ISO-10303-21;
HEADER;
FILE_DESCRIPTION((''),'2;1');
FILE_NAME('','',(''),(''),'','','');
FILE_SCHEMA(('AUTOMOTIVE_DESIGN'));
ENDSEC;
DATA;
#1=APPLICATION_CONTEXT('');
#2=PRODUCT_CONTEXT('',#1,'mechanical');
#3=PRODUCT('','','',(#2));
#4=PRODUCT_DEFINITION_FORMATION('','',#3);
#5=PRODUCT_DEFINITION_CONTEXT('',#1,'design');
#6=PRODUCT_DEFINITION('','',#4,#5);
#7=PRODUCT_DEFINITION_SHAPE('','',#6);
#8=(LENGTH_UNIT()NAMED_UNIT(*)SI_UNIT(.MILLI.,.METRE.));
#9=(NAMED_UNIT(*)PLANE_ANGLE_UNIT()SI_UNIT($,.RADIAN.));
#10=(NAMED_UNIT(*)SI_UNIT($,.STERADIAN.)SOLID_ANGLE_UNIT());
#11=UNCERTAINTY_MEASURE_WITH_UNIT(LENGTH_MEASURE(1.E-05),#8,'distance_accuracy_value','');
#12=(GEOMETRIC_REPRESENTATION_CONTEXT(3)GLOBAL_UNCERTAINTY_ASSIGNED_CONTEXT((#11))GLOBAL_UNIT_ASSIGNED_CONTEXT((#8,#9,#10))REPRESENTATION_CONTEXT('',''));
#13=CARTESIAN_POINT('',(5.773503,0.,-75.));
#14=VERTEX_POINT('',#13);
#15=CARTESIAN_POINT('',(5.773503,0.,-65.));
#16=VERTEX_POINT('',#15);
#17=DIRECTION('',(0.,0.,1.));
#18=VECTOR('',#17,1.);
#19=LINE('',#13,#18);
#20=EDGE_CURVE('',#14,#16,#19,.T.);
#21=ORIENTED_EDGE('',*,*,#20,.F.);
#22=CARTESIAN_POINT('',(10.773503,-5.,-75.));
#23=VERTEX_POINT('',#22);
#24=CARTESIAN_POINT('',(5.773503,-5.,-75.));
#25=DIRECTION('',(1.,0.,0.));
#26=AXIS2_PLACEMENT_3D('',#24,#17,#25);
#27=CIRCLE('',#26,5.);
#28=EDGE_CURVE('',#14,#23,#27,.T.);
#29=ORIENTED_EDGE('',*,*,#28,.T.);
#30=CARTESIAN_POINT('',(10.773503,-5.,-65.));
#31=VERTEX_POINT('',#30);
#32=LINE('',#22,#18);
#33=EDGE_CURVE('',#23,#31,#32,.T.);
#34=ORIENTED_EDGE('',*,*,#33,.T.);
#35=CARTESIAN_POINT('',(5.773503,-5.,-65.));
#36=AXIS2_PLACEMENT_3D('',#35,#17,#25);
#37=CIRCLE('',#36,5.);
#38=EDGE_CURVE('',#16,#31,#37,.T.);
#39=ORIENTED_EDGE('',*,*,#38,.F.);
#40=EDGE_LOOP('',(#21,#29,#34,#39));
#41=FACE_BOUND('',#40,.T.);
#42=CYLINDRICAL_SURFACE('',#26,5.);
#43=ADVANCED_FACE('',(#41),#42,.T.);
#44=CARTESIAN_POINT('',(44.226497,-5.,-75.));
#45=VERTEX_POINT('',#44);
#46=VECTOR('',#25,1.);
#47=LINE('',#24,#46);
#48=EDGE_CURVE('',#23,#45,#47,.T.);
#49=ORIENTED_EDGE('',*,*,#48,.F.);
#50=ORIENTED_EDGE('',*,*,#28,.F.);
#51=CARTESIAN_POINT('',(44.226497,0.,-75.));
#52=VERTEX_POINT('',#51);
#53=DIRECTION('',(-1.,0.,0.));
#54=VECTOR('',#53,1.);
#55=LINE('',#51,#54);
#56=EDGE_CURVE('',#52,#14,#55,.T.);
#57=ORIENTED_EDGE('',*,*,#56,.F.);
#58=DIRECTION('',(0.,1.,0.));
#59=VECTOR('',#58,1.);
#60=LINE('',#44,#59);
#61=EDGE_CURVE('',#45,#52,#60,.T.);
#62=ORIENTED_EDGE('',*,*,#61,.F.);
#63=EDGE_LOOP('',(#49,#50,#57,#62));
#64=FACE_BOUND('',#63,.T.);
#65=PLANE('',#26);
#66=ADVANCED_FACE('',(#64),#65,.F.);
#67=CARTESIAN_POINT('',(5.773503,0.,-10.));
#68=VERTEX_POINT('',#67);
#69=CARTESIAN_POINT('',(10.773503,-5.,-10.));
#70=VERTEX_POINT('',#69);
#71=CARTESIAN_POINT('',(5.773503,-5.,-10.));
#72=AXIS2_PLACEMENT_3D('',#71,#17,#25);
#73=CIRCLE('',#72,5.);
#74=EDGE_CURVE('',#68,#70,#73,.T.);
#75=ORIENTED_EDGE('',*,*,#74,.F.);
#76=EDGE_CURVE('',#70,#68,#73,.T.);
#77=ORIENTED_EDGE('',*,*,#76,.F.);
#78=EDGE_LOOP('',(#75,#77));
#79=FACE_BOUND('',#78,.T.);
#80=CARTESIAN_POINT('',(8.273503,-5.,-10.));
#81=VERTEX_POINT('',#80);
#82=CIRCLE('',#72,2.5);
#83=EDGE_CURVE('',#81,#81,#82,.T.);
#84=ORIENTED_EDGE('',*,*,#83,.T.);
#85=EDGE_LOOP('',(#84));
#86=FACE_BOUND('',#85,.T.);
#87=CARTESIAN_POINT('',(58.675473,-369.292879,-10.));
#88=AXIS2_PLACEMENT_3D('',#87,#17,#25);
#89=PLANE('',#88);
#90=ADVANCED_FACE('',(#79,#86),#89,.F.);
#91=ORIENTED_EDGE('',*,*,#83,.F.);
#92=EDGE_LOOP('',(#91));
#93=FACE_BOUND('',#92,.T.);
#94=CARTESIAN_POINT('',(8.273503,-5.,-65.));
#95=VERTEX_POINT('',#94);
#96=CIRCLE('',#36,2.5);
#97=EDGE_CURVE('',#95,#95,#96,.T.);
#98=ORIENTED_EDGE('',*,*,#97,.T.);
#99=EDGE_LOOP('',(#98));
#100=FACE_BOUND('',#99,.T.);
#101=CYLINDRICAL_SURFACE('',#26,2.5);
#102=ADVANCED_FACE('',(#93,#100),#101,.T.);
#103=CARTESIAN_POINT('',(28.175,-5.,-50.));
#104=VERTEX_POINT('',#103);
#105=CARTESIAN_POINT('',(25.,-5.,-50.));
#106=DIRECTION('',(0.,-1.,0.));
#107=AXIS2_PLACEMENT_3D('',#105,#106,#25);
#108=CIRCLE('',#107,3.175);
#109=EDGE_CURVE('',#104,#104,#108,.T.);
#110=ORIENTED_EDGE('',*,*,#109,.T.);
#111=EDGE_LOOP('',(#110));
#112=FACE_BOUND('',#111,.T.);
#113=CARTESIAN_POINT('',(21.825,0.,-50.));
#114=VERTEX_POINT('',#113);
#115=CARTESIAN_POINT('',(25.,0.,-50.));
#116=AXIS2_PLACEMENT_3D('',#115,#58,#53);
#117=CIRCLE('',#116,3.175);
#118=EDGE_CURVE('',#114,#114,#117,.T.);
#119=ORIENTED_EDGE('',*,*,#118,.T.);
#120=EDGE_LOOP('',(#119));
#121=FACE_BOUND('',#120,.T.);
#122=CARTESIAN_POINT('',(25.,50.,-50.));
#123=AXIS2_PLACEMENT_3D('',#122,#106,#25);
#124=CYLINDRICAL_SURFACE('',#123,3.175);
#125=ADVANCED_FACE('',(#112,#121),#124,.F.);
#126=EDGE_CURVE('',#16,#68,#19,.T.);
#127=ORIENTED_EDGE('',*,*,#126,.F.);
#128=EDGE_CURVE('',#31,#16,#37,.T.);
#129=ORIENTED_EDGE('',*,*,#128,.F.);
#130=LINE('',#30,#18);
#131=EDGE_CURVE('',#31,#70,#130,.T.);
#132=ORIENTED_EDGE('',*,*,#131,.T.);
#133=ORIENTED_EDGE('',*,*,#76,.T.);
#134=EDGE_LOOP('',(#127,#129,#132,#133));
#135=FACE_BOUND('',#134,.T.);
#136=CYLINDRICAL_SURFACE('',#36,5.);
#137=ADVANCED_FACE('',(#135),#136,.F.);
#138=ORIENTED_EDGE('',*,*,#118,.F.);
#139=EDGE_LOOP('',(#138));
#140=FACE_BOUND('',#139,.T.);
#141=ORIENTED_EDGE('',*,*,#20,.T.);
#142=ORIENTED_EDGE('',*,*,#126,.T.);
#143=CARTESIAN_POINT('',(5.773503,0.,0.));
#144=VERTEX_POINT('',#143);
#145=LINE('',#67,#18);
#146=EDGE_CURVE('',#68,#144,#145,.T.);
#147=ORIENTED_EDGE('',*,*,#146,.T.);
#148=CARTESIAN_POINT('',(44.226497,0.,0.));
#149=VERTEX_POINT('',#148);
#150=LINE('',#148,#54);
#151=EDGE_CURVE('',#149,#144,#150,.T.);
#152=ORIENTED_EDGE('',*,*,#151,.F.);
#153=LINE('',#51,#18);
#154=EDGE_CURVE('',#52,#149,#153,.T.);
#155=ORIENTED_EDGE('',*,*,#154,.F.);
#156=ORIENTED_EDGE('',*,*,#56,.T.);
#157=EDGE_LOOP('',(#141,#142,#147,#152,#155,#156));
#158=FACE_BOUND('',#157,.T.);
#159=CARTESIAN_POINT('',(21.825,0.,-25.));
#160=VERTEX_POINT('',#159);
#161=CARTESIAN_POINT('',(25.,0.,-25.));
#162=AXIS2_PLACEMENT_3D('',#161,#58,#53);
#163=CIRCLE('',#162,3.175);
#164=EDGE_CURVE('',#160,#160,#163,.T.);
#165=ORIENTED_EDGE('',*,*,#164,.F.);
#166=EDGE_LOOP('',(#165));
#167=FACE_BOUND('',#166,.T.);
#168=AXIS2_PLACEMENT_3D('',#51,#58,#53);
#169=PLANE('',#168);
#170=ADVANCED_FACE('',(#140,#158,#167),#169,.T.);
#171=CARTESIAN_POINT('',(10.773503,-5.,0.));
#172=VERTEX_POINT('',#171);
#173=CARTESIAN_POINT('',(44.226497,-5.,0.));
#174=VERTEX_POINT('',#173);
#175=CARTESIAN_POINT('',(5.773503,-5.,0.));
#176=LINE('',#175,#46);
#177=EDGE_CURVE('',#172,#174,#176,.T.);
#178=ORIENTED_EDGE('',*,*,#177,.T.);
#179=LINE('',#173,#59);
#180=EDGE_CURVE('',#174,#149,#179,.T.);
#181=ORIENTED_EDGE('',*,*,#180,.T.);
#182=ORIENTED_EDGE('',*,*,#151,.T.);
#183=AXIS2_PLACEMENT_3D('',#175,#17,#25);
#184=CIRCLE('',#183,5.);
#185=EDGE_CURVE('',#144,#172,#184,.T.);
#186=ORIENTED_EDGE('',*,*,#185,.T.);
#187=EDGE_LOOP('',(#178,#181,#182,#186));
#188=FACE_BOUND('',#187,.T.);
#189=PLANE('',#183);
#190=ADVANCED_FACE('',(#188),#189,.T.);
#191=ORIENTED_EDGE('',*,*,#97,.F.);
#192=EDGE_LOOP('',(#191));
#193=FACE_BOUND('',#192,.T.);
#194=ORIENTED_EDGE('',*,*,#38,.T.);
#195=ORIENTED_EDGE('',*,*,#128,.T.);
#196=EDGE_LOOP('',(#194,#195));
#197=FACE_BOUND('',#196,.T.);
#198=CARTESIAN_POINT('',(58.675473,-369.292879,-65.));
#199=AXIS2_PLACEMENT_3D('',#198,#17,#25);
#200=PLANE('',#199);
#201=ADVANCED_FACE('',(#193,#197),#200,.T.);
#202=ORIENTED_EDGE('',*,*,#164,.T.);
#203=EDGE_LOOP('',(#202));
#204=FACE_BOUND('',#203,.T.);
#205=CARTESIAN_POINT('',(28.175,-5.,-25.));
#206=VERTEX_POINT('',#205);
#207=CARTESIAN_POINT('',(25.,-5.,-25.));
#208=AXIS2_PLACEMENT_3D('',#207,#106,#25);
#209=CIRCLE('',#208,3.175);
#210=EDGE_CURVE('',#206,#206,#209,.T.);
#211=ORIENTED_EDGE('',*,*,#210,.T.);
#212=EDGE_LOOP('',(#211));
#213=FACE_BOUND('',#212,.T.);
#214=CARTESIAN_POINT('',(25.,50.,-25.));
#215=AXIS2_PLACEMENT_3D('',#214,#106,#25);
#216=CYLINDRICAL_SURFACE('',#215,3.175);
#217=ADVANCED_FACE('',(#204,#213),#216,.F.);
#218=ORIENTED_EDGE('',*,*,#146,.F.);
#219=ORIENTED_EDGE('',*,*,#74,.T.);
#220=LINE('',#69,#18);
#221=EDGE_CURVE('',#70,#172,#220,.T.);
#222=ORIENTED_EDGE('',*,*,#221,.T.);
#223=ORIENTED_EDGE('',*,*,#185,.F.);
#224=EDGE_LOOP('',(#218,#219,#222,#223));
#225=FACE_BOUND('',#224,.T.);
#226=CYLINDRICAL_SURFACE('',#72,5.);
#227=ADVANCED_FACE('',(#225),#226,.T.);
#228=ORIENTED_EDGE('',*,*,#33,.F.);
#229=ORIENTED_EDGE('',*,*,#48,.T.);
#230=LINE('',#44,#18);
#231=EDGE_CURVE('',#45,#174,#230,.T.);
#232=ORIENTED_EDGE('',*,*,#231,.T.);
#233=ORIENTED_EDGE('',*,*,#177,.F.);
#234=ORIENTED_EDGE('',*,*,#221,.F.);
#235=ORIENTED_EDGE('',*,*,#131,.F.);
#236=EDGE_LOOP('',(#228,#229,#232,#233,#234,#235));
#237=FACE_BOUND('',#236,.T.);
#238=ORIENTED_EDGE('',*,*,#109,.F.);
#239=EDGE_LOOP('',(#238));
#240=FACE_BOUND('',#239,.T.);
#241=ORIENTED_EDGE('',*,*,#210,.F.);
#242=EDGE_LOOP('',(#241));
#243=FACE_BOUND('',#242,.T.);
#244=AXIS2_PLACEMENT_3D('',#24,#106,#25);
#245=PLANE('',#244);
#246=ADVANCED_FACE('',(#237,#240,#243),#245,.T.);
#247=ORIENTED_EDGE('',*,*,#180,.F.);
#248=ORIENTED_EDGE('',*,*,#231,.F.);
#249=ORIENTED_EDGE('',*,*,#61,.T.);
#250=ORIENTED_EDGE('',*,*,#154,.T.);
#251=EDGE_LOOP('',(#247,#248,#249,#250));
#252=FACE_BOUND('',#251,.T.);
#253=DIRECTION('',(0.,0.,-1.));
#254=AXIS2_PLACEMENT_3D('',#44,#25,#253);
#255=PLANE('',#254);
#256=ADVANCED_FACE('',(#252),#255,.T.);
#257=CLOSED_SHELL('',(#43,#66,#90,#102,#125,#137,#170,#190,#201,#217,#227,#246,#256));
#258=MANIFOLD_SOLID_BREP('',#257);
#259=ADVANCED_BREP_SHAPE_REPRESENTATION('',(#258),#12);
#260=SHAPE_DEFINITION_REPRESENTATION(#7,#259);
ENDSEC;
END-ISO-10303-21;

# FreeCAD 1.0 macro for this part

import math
import FreeCAD as App
import Part
import Sketcher
from FreeCAD import Vector

doc = App.newDocument("Part")
body = doc.addObject("PartDesign::Body", "Body")

# Sketch on XY plane
sketch1 = body.newObject("Sketcher::SketchObject", "Sketch")
sketch1.AttachmentSupport = (doc.getObject("XY_Plane"), [""])
sketch1.MapMode = "FlatFace"
sketch1.addGeometry(Part.LineSegment(Vector(6, 0, 0), Vector(6, -5, 0)), False)
sketch1.addGeometry(Part.LineSegment(Vector(6, -5, 0), Vector(44, -5, 0)), False)
sketch1.addGeometry(Part.LineSegment(Vector(44, -5, 0), Vector(44, 0, 0)), False)
sketch1.addGeometry(Part.LineSegment(Vector(44, 0, 0), Vector(6, 0, 0)), False)
sketch1.addConstraint(Sketcher.Constraint("Coincident", 0, 2, 1, 1))
sketch1.addConstraint(Sketcher.Constraint("Coincident", 1, 2, 2, 1))
sketch1.addConstraint(Sketcher.Constraint("Coincident", 2, 2, 3, 1))
sketch1.addConstraint(Sketcher.Constraint("Coincident", 3, 2, 0, 1))
sketch1.addConstraint(Sketcher.Constraint("Vertical", 0))
sketch1.addConstraint(Sketcher.Constraint("Horizontal", 1))
sketch1.addConstraint(Sketcher.Constraint("Vertical", 2))
sketch1.addConstraint(Sketcher.Constraint("Horizontal", 3))
sketch1.addConstraint(Sketcher.Constraint("PointOnObject", 2, 2, -1))
sketch1.addConstraint(Sketcher.Constraint("DistanceY", 0, 2, 0, 1, 5.0))
sketch1.addConstraint(Sketcher.Constraint("DistanceX", 1, 1, 1, 2, 38.452995))
sketch1.addConstraint(Sketcher.Constraint("DistanceX", -1, 1, 0, 2, 5.773503))
pad1 = body.newObject("PartDesign::Pad", "Pad")
pad1.Profile = sketch1
pad1.Length = 75
pad1.Reversed = True

# Sketch on XY plane
sketch2 = body.newObject("Sketcher::SketchObject", "Sketch001")
sketch2.AttachmentSupport = (doc.getObject("XY_Plane"), [""])
sketch2.MapMode = "FlatFace"
sketch2.addGeometry(Part.ArcOfCircle(Part.Circle(Vector(5.8, -5, 0), Vector(0, 0, 1), 5), math.radians(0), math.radians(90)), False)
sketch2.addGeometry(Part.ArcOfCircle(Part.Circle(Vector(5.8, -5, 0), Vector(0, 0, 1), 5), math.radians(90), math.radians(150)), False)
sketch2.addGeometry(Part.ArcOfCircle(Part.Circle(Vector(5.8, -5, 0), Vector(0, 0, 1), 5), math.radians(150), math.radians(360)), False)
sketch2.addConstraint(Sketcher.Constraint("Tangent", 0, 2, 1, 1))
sketch2.addConstraint(Sketcher.Constraint("Tangent", 1, 2, 2, 1))
sketch2.addConstraint(Sketcher.Constraint("Tangent", 2, 2, 0, 1))
sketch2.addConstraint(Sketcher.Constraint("PointOnObject", 0, 2, -1))
sketch2.addConstraint(Sketcher.Constraint("Horizontal", 1, 3, 2, 2))
sketch2.addConstraint(Sketcher.Constraint("Vertical", 2, 3, 0, 2))
sketch2.addConstraint(Sketcher.Constraint("Radius", 0, 5.0))
sketch2.addConstraint(Sketcher.Constraint("DistanceY", 1, 2, -1, 1, 2.5))
sketch2.addConstraint(Sketcher.Constraint("DistanceX", -1, 1, 0, 3, 5.773503))
pad2 = body.newObject("PartDesign::Pad", "Pad001")
pad2.Profile = sketch2
pad2.Length = 10
pad2.Reversed = True

# Sketch on XY plane
sketch3 = body.newObject("Sketcher::SketchObject", "Sketch002")
sketch3.AttachmentSupport = (doc.getObject("XY_Plane"), [""])
sketch3.MapMode = "FlatFace"
sketch3.addGeometry(Part.ArcOfCircle(Part.Circle(Vector(5.8, -5, 0), Vector(0, 0, 1), 2.5), math.radians(0), math.radians(90)), False)
sketch3.addGeometry(Part.ArcOfCircle(Part.Circle(Vector(5.8, -5, 0), Vector(0, 0, 1), 2.5), math.radians(90), math.radians(360)), False)
sketch3.addConstraint(Sketcher.Constraint("Tangent", 0, 1, 1, 2))
sketch3.addConstraint(Sketcher.Constraint("Coincident", 1, 1, 0, 2))
sketch3.addConstraint(Sketcher.Constraint("Horizontal", 1, 3, 0, 1))
sketch3.addConstraint(Sketcher.Constraint("Vertical", 0, 3, 1, 1))
sketch3.addConstraint(Sketcher.Constraint("Radius", 0, 2.5))
sketch3.addConstraint(Sketcher.Constraint("DistanceY", 0, 3, -1, 1, 5.0))
sketch3.addConstraint(Sketcher.Constraint("DistanceX", -1, 1, 0, 3, 5.773503))
pad3 = body.newObject("PartDesign::Pad", "Pad002")
pad3.Profile = sketch3
pad3.Length = 75
pad3.Reversed = True

# Sketch on XY plane
sketch4 = body.newObject("Sketcher::SketchObject", "Sketch003")
sketch4.AttachmentSupport = (doc.getObject("XY_Plane"), [""])
sketch4.MapMode = "FlatFace"
sketch4.AttachmentOffset = App.Placement(Vector(0, 0, -65), App.Rotation())
sketch4.addGeometry(Part.ArcOfCircle(Part.Circle(Vector(5.8, -5, 0), Vector(0, 0, 1), 5), math.radians(0), math.radians(90)), False)
sketch4.addGeometry(Part.ArcOfCircle(Part.Circle(Vector(5.8, -5, 0), Vector(0, 0, 1), 5), math.radians(90), math.radians(150)), False)
sketch4.addGeometry(Part.ArcOfCircle(Part.Circle(Vector(5.8, -5, 0), Vector(0, 0, 1), 5), math.radians(150), math.radians(360)), False)
sketch4.addGeometry(Part.ArcOfCircle(Part.Circle(Vector(5.8, -5, 0), Vector(0, 0, 1), 2.5), math.radians(0), math.radians(90)), False)
sketch4.addGeometry(Part.ArcOfCircle(Part.Circle(Vector(5.8, -5, 0), Vector(0, 0, 1), 2.5), math.radians(90), math.radians(360)), False)
sketch4.addConstraint(Sketcher.Constraint("Tangent", 0, 2, 1, 1))
sketch4.addConstraint(Sketcher.Constraint("Tangent", 1, 2, 2, 1))
sketch4.addConstraint(Sketcher.Constraint("Tangent", 2, 2, 0, 1))
sketch4.addConstraint(Sketcher.Constraint("Tangent", 3, 1, 4, 2))
sketch4.addConstraint(Sketcher.Constraint("Coincident", 4, 1, 3, 2))
sketch4.addConstraint(Sketcher.Constraint("Coincident", 3, 3, 0, 3))
sketch4.addConstraint(Sketcher.Constraint("PointOnObject", 0, 2, -1))
sketch4.addConstraint(Sketcher.Constraint("Horizontal", 4, 3, 2, 2))
sketch4.addConstraint(Sketcher.Constraint("Horizontal", 2, 2, 3, 1))
sketch4.addConstraint(Sketcher.Constraint("Horizontal", 1, 2, 4, 1))
sketch4.addConstraint(Sketcher.Constraint("Vertical", 4, 3, 0, 2))
sketch4.addConstraint(Sketcher.Constraint("Vertical", 0, 2, 4, 1))
sketch4.addConstraint(Sketcher.Constraint("Radius", 0, 5.0))
sketch4.addConstraint(Sketcher.Constraint("Radius", 3, 2.5))
sketch4.addConstraint(Sketcher.Constraint("DistanceX", -1, 1, 0, 3, 5.773503))
pad4 = body.newObject("PartDesign::Pad", "Pad003")
pad4.Profile = sketch4
pad4.Length = 10
pad4.Reversed = True

# Sketch on XY plane
sketch5 = body.newObject("Sketcher::SketchObject", "Sketch004")
sketch5.AttachmentSupport = (doc.getObject("XY_Plane"), [""])
sketch5.MapMode = "FlatFace"
sketch5.AttachmentOffset = App.Placement(Vector(0, 0, -10), App.Rotation())
sketch5.addGeometry(Part.ArcOfCircle(Part.Circle(Vector(5.8, -5, 0), Vector(0, 0, 1), 5), math.radians(0), math.radians(90)), False)
sketch5.addGeometry(Part.LineSegment(Vector(5.8, 0, 0), Vector(5.8, -2.5, 0)), False)
sketch5.addGeometry(Part.ArcOfCircle(Part.Circle(Vector(5.8, -5, 0), Vector(0, 0, 1), 2.5), math.radians(0), math.radians(90)), False)
sketch5.addGeometry(Part.LineSegment(Vector(8.3, -5, 0), Vector(10.8, -5, 0)), False)
sketch5.addGeometry(Part.LineSegment(Vector(5.8, -2.5, 0), Vector(5.8, 0, 0)), False)
sketch5.addGeometry(Part.ArcOfCircle(Part.Circle(Vector(5.8, -5, 0), Vector(0, 0, 1), 5), math.radians(90), math.radians(150)), False)
sketch5.addGeometry(Part.ArcOfCircle(Part.Circle(Vector(5.8, -5, 0), Vector(0, 0, 1), 5), math.radians(150), math.radians(360)), False)
sketch5.addGeometry(Part.LineSegment(Vector(10.8, -5, 0), Vector(8.3, -5, 0)), False)
sketch5.addGeometry(Part.ArcOfCircle(Part.Circle(Vector(5.8, -5, 0), Vector(0, 0, 1), 2.5), math.radians(90), math.radians(360)), False)
sketch5.addConstraint(Sketcher.Constraint("Coincident", 0, 2, 1, 1))
sketch5.addConstraint(Sketcher.Constraint("Coincident", 1, 2, 2, 2))
sketch5.addConstraint(Sketcher.Constraint("Coincident", 2, 1, 3, 1))
sketch5.addConstraint(Sketcher.Constraint("Coincident", 3, 2, 0, 1))
sketch5.addConstraint(Sketcher.Constraint("Coincident", 4, 2, 5, 1))
sketch5.addConstraint(Sketcher.Constraint("Tangent", 5, 2, 6, 1))
sketch5.addConstraint(Sketcher.Constraint("Coincident", 6, 2, 7, 1))
sketch5.addConstraint(Sketcher.Constraint("Coincident", 7, 2, 8, 2))
sketch5.addConstraint(Sketcher.Constraint("Coincident", 8, 1, 4, 1))
sketch5.addConstraint(Sketcher.Constraint("Vertical", 1))
sketch5.addConstraint(Sketcher.Constraint("Horizontal", 3))
sketch5.addConstraint(Sketcher.Constraint("Vertical", 4))
sketch5.addConstraint(Sketcher.Constraint("Horizontal", 7))
sketch5.addConstraint(Sketcher.Constraint("Coincident", 2, 3, 0, 3))
sketch5.addConstraint(Sketcher.Constraint("Coincident", 5, 3, 0, 3))
sketch5.addConstraint(Sketcher.Constraint("Coincident", 8, 3, 0, 3))
sketch5.addConstraint(Sketcher.Constraint("Coincident", 4, 2, 0, 2))
sketch5.addConstraint(Sketcher.Constraint("Coincident", 6, 2, 3, 2))
sketch5.addConstraint(Sketcher.Constraint("Equal", 2, 8))
sketch5.addConstraint(Sketcher.Constraint("PointOnObject", 0, 2, -1))
sketch5.addConstraint(Sketcher.Constraint("Horizontal", 8, 3, 2, 1))
sketch5.addConstraint(Sketcher.Constraint("Horizontal", 1, 2, 5, 2))
sketch5.addConstraint(Sketcher.Constraint("Vertical", 8, 3, 0, 2))
sketch5.addConstraint(Sketcher.Constraint("Radius", 0, 5.0))
sketch5.addConstraint(Sketcher.Constraint("Radius", 2, 2.5))
sketch5.addConstraint(Sketcher.Constraint("DistanceX", -1, 1, 0, 3, 5.773503))
pocket1 = body.newObject("PartDesign::Pocket", "Pocket")
pocket1.Profile = sketch5
pocket1.Length = 55

# Sketch on XZ plane
sketch6 = body.newObject("Sketcher::SketchObject", "Sketch005")
sketch6.AttachmentSupport = (doc.getObject("XZ_Plane"), [""])
sketch6.MapMode = "FlatFace"
sketch6.AttachmentOffset = App.Placement(Vector(0, 0, 5), App.Rotation())
sketch6.addGeometry(Part.Circle(Vector(25, -25, 0), Vector(0, 0, 1), 3.2), False)
sketch6.addGeometry(Part.Circle(Vector(25, -50, 0), Vector(0, 0, 1), 3.2), False)
sketch6.addConstraint(Sketcher.Constraint("Equal", 0, 1))
sketch6.addConstraint(Sketcher.Constraint("Vertical", 0, 3, 1, 3))
sketch6.addConstraint(Sketcher.Constraint("Diameter", 0, 6.35))
sketch6.addConstraint(Sketcher.Constraint("DistanceX", -1, 1, 0, 3, 25.0))
sketch6.addConstraint(Sketcher.Constraint("DistanceY", 0, 3, -1, 1, 25.0))
sketch6.addConstraint(Sketcher.Constraint("DistanceY", 1, 3, -1, 1, 50.0))
pocket2 = body.newObject("PartDesign::Pocket", "Pocket001")
pocket2.Profile = sketch6
pocket2.Length = 55

doc.recompute()
